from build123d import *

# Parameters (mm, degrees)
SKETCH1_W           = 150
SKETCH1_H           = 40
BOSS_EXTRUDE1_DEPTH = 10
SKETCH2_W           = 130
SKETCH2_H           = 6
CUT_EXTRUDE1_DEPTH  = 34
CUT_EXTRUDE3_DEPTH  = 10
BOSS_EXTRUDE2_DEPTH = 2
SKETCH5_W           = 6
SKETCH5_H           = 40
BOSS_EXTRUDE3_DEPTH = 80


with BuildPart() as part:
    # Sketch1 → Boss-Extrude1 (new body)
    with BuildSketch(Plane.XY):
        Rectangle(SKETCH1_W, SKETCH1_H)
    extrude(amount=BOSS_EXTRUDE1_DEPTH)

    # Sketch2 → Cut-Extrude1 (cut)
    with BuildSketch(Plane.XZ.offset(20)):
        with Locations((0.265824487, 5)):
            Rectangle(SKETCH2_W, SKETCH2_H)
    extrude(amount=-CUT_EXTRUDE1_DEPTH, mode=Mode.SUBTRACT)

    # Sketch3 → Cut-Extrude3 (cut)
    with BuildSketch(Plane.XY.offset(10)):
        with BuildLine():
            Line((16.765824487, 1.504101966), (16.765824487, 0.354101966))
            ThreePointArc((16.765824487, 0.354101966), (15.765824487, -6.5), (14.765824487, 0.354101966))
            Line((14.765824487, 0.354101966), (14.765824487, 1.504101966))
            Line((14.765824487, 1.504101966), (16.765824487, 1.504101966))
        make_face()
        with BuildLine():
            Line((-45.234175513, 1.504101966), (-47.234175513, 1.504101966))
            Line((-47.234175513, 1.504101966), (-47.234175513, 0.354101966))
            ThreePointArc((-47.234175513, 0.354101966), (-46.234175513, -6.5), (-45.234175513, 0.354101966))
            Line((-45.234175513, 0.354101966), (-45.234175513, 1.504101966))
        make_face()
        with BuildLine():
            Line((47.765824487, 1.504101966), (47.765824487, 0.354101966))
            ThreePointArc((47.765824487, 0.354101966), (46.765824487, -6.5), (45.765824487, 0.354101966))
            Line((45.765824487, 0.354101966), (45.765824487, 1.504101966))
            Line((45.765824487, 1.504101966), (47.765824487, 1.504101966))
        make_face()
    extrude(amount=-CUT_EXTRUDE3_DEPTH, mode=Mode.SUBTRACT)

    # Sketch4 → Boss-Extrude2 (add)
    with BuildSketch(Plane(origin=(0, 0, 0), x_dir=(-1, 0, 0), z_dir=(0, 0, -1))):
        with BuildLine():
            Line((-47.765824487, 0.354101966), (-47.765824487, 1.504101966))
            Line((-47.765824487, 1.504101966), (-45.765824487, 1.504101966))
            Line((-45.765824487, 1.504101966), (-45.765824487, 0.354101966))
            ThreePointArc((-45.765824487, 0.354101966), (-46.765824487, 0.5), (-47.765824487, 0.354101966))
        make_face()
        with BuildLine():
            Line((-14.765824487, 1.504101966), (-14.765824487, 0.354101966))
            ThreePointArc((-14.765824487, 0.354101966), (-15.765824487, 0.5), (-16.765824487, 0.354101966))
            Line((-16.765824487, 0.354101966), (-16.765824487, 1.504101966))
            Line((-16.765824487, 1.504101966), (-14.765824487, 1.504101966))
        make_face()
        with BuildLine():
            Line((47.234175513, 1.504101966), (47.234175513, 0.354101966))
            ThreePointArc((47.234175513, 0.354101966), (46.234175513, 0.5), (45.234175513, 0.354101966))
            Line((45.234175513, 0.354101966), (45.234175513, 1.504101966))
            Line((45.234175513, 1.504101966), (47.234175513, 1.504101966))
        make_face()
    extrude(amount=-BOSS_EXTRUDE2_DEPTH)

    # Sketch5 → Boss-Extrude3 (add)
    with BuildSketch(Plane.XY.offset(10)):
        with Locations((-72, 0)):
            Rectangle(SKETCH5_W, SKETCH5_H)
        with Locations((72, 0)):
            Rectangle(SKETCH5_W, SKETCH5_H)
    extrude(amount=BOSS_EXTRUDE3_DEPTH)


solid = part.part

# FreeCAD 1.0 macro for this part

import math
import FreeCAD as App
import Part
import Sketcher

doc = App.newDocument("Part")
body = doc.addObject("PartDesign::Body", "Body")

# Sketch on XY plane
sketch1 = body.newObject("Sketcher::SketchObject", "Sketch")
sketch1.AttachmentSupport = (doc.getObject("XY_Plane"), [""])
sketch1.MapMode = "FlatFace"
sketch1.addGeometry([
    Part.LineSegment(App.Vector(-75, 20, 0), App.Vector(-75, -20, 0)),
    Part.LineSegment(App.Vector(-75, -20, 0), App.Vector(75, -20, 0)),
    Part.LineSegment(App.Vector(75, -20, 0), App.Vector(75, 20, 0)),
    Part.LineSegment(App.Vector(75, 20, 0), App.Vector(-75, 20, 0)),
], False)
sketch1.addConstraint([
    Sketcher.Constraint("Coincident", 0, 2, 1, 1),
    Sketcher.Constraint("Coincident", 1, 2, 2, 1),
    Sketcher.Constraint("Coincident", 2, 2, 3, 1),
    Sketcher.Constraint("Coincident", 3, 2, 0, 1),
    Sketcher.Constraint("Vertical", 0),
    Sketcher.Constraint("Horizontal", 1),
    Sketcher.Constraint("Vertical", 2),
    Sketcher.Constraint("Horizontal", 3),
    Sketcher.Constraint("Symmetric", 0, 2, 2, 2, -1, 1),
    Sketcher.Constraint("DistanceX", 1, 1, 1, 2, 150.0),
    Sketcher.Constraint("DistanceY", 0, 2, 0, 1, 40.0),
])
pad1 = body.newObject("PartDesign::Pad", "Pad")
pad1.Profile = sketch1
pad1.Length = 10

# Sketch on XZ plane
sketch2 = body.newObject("Sketcher::SketchObject", "Sketch001")
sketch2.AttachmentSupport = (doc.getObject("XZ_Plane"), [""])
sketch2.MapMode = "FlatFace"
sketch2.AttachmentOffset = App.Placement(App.Vector(0, 0, 20), App.Rotation())
sketch2.addGeometry([
    Part.LineSegment(App.Vector(-64.734176, 8, 0), App.Vector(-64.734176, 2, 0)),
    Part.LineSegment(App.Vector(-64.734176, 2, 0), App.Vector(65.265824, 2, 0)),
    Part.LineSegment(App.Vector(65.265824, 2, 0), App.Vector(65.265824, 8, 0)),
    Part.LineSegment(App.Vector(65.265824, 8, 0), App.Vector(-64.734176, 8, 0)),
], False)
sketch2.addConstraint([
    Sketcher.Constraint("Coincident", 0, 2, 1, 1),
    Sketcher.Constraint("Coincident", 1, 2, 2, 1),
    Sketcher.Constraint("Coincident", 2, 2, 3, 1),
    Sketcher.Constraint("Coincident", 3, 2, 0, 1),
    Sketcher.Constraint("Vertical", 0),
    Sketcher.Constraint("Horizontal", 1),
    Sketcher.Constraint("Vertical", 2),
    Sketcher.Constraint("Horizontal", 3),
    Sketcher.Constraint("DistanceX", 1, 1, 1, 2, 130.0),
    Sketcher.Constraint("DistanceY", 0, 2, 0, 1, 6.0),
    Sketcher.Constraint("DistanceY", -1, 1, 0, 2, 2.0),
    Sketcher.Constraint("DistanceX", 0, 2, -1, 1, 64.734176),
])
pocket1 = body.newObject("PartDesign::Pocket", "Pocket")
pocket1.Profile = sketch2
pocket1.Length = 34

# Sketch on XY plane
sketch3 = body.newObject("Sketcher::SketchObject", "Sketch002")
sketch3.AttachmentSupport = (doc.getObject("XY_Plane"), [""])
sketch3.MapMode = "FlatFace"
sketch3.AttachmentOffset = App.Placement(App.Vector(0, 0, 10), App.Rotation())
sketch3.addGeometry([
    Part.LineSegment(App.Vector(16.765824, 0.354102, 0), App.Vector(16.765824, 1.504102, 0)),  # 0
    Part.LineSegment(App.Vector(16.765824, 1.504102, 0), App.Vector(14.765824, 1.504102, 0)),  # 1
    Part.LineSegment(App.Vector(14.765824, 1.504102, 0), App.Vector(14.765824, 0.354102, 0)),  # 2
    Part.ArcOfCircle(Part.Circle(App.Vector(15.765824, -3, 0), App.Vector(0, 0, 1), 3.5), math.radians(106.60155), math.radians(433.39845)),  # 3
    Part.LineSegment(App.Vector(-45.234176, 1.504102, 0), App.Vector(-47.234176, 1.504102, 0)),  # 4
    Part.LineSegment(App.Vector(-47.234176, 1.504102, 0), App.Vector(-47.234176, 0.354102, 0)),  # 5
    Part.ArcOfCircle(Part.Circle(App.Vector(-46.234176, -3, 0), App.Vector(0, 0, 1), 3.5), math.radians(106.60155), math.radians(433.39845)),  # 6
    Part.LineSegment(App.Vector(-45.234176, 0.354102, 0), App.Vector(-45.234176, 1.504102, 0)),  # 7
    Part.LineSegment(App.Vector(47.765824, 0.354102, 0), App.Vector(47.765824, 1.504102, 0)),  # 8
    Part.LineSegment(App.Vector(47.765824, 1.504102, 0), App.Vector(45.765824, 1.504102, 0)),  # 9
    Part.LineSegment(App.Vector(45.765824, 1.504102, 0), App.Vector(45.765824, 0.354102, 0)),  # 10
    Part.ArcOfCircle(Part.Circle(App.Vector(46.765824, -3, 0), App.Vector(0, 0, 1), 3.5), math.radians(106.60155), math.radians(433.39845)),  # 11
], False)
sketch3.addConstraint([
    Sketcher.Constraint("Coincident", 0, 2, 1, 1),
    Sketcher.Constraint("Coincident", 1, 2, 2, 1),
    Sketcher.Constraint("Coincident", 2, 2, 3, 1),
    Sketcher.Constraint("Coincident", 3, 2, 0, 1),
    Sketcher.Constraint("Coincident", 4, 2, 5, 1),
    Sketcher.Constraint("Coincident", 5, 2, 6, 1),
    Sketcher.Constraint("Coincident", 6, 2, 7, 1),
    Sketcher.Constraint("Coincident", 7, 2, 4, 1),
    Sketcher.Constraint("Coincident", 8, 2, 9, 1),
    Sketcher.Constraint("Coincident", 9, 2, 10, 1),
    Sketcher.Constraint("Coincident", 10, 2, 11, 1),
    Sketcher.Constraint("Coincident", 11, 2, 8, 1),
    Sketcher.Constraint("Vertical", 0),
    Sketcher.Constraint("Horizontal", 1),
    Sketcher.Constraint("Vertical", 2),
    Sketcher.Constraint("Horizontal", 4),
    Sketcher.Constraint("Vertical", 5),
    Sketcher.Constraint("Vertical", 7),
    Sketcher.Constraint("Vertical", 8),
    Sketcher.Constraint("Horizontal", 9),
    Sketcher.Constraint("Vertical", 10),
    Sketcher.Constraint("Equal", 3, 6),
    Sketcher.Constraint("Equal", 6, 11),
    Sketcher.Constraint("Horizontal", 3, 3, 6, 3),
    Sketcher.Constraint("Horizontal", 6, 3, 11, 3),
    Sketcher.Constraint("Horizontal", 2, 2, 3, 2),
    Sketcher.Constraint("Horizontal", 1, 2, 4, 2),
    Sketcher.Constraint("Horizontal", 3, 2, 5, 2),
    Sketcher.Constraint("Horizontal", 5, 2, 6, 2),
    Sketcher.Constraint("Horizontal", 7, 2, 8, 2),
    Sketcher.Constraint("Horizontal", 6, 2, 10, 2),
    Sketcher.Constraint("Horizontal", 10, 2, 11, 2),
    Sketcher.Constraint("Radius", 3, 3.5),
    Sketcher.Constraint("DistanceX", 1, 2, 1, 1, 2.0),
    Sketcher.Constraint("DistanceY", 3, 3, -1, 1, 3.0),
    Sketcher.Constraint("DistanceX", 6, 3, 3, 3, 62.0),
    Sketcher.Constraint("DistanceX", 3, 3, 11, 3, 31.0),
    Sketcher.Constraint("DistanceY", 0, 1, 0, 2, 1.15),
    Sketcher.Constraint("DistanceX", -1, 1, 3, 3, 15.765824),
])
pocket2 = body.newObject("PartDesign::Pocket", "Pocket001")
pocket2.Profile = sketch3
pocket2.Length = 10

# Sketch on XY plane
sketch4 = body.newObject("Sketcher::SketchObject", "Sketch003")
sketch4.AttachmentSupport = (doc.getObject("XY_Plane"), [""])
sketch4.MapMode = "FlatFace"
sketch4.addGeometry([
    Part.LineSegment(App.Vector(47.765824, 1.504102, 0), App.Vector(47.765824, 0.354102, 0)),  # 0
    Part.ArcOfCircle(Part.Circle(App.Vector(46.765824, -3, 0), App.Vector(0, 0, 1), 3.5), math.radians(73.39845), math.radians(106.60155)),  # 1
    Part.LineSegment(App.Vector(45.765824, 0.354102, 0), App.Vector(45.765824, 1.504102, 0)),  # 2
    Part.LineSegment(App.Vector(45.765824, 1.504102, 0), App.Vector(47.765824, 1.504102, 0)),  # 3
    Part.LineSegment(App.Vector(14.765824, 0.354102, 0), App.Vector(14.765824, 1.504102, 0)),  # 4
    Part.LineSegment(App.Vector(14.765824, 1.504102, 0), App.Vector(16.765824, 1.504102, 0)),  # 5
    Part.LineSegment(App.Vector(16.765824, 1.504102, 0), App.Vector(16.765824, 0.354102, 0)),  # 6
    Part.ArcOfCircle(Part.Circle(App.Vector(15.765824, -3, 0), App.Vector(0, 0, 1), 3.5), math.radians(73.39845), math.radians(106.60155)),  # 7
    Part.LineSegment(App.Vector(-47.234176, 0.354102, 0), App.Vector(-47.234176, 1.504102, 0)),  # 8
    Part.LineSegment(App.Vector(-47.234176, 1.504102, 0), App.Vector(-45.234176, 1.504102, 0)),  # 9
    Part.LineSegment(App.Vector(-45.234176, 1.504102, 0), App.Vector(-45.234176, 0.354102, 0)),  # 10
    Part.ArcOfCircle(Part.Circle(App.Vector(-46.234176, -3, 0), App.Vector(0, 0, 1), 3.5), math.radians(73.39845), math.radians(106.60155)),  # 11
], False)
sketch4.addConstraint([
    Sketcher.Constraint("Coincident", 0, 2, 1, 1),
    Sketcher.Constraint("Coincident", 1, 2, 2, 1),
    Sketcher.Constraint("Coincident", 2, 2, 3, 1),
    Sketcher.Constraint("Coincident", 3, 2, 0, 1),
    Sketcher.Constraint("Coincident", 4, 2, 5, 1),
    Sketcher.Constraint("Coincident", 5, 2, 6, 1),
    Sketcher.Constraint("Coincident", 6, 2, 7, 1),
    Sketcher.Constraint("Coincident", 7, 2, 4, 1),
    Sketcher.Constraint("Coincident", 8, 2, 9, 1),
    Sketcher.Constraint("Coincident", 9, 2, 10, 1),
    Sketcher.Constraint("Coincident", 10, 2, 11, 1),
    Sketcher.Constraint("Coincident", 11, 2, 8, 1),
    Sketcher.Constraint("Vertical", 0),
    Sketcher.Constraint("Vertical", 2),
    Sketcher.Constraint("Horizontal", 3),
    Sketcher.Constraint("Vertical", 4),
    Sketcher.Constraint("Horizontal", 5),
    Sketcher.Constraint("Vertical", 6),
    Sketcher.Constraint("Vertical", 8),
    Sketcher.Constraint("Horizontal", 9),
    Sketcher.Constraint("Vertical", 10),
    Sketcher.Constraint("Equal", 1, 7),
    Sketcher.Constraint("Equal", 7, 11),
    Sketcher.Constraint("Horizontal", 1, 3, 7, 3),
    Sketcher.Constraint("Horizontal", 7, 3, 11, 3),
    Sketcher.Constraint("Horizontal", 0, 2, 1, 2),
    Sketcher.Constraint("Horizontal", 3, 2, 4, 2),
    Sketcher.Constraint("Horizontal", 1, 2, 6, 2),
    Sketcher.Constraint("Horizontal", 6, 2, 7, 2),
    Sketcher.Constraint("Horizontal", 5, 2, 8, 2),
    Sketcher.Constraint("Horizontal", 7, 2, 10, 2),
    Sketcher.Constraint("Horizontal", 10, 2, 11, 2),
    Sketcher.Constraint("Radius", 1, 3.5),
    Sketcher.Constraint("DistanceX", 3, 1, 3, 2, 2.0),
    Sketcher.Constraint("DistanceY", 1, 3, -1, 1, 3.0),
    Sketcher.Constraint("DistanceX", 7, 3, 1, 3, 31.0),
    Sketcher.Constraint("DistanceX", 11, 3, 7, 3, 62.0),
    Sketcher.Constraint("DistanceY", 0, 2, 0, 1, 1.15),
    Sketcher.Constraint("DistanceX", -1, 1, 1, 3, 46.765824),
])
pad2 = body.newObject("PartDesign::Pad", "Pad001")
pad2.Profile = sketch4
pad2.Length = 2

# Sketch on XY plane
sketch5 = body.newObject("Sketcher::SketchObject", "Sketch004")
sketch5.AttachmentSupport = (doc.getObject("XY_Plane"), [""])
sketch5.MapMode = "FlatFace"
sketch5.AttachmentOffset = App.Placement(App.Vector(0, 0, 10), App.Rotation())
sketch5.addGeometry([
    Part.LineSegment(App.Vector(-75, 20, 0), App.Vector(-75, -20, 0)),  # 0
    Part.LineSegment(App.Vector(-75, -20, 0), App.Vector(-69, -20, 0)),  # 1
    Part.LineSegment(App.Vector(-69, -20, 0), App.Vector(-69, 20, 0)),  # 2
    Part.LineSegment(App.Vector(-69, 20, 0), App.Vector(-75, 20, 0)),  # 3
    Part.LineSegment(App.Vector(69, 20, 0), App.Vector(69, -20, 0)),  # 4
    Part.LineSegment(App.Vector(69, -20, 0), App.Vector(75, -20, 0)),  # 5
    Part.LineSegment(App.Vector(75, -20, 0), App.Vector(75, 20, 0)),  # 6
    Part.LineSegment(App.Vector(75, 20, 0), App.Vector(69, 20, 0)),  # 7
], False)
sketch5.addConstraint([
    Sketcher.Constraint("Coincident", 0, 2, 1, 1),
    Sketcher.Constraint("Coincident", 1, 2, 2, 1),
    Sketcher.Constraint("Coincident", 2, 2, 3, 1),
    Sketcher.Constraint("Coincident", 3, 2, 0, 1),
    Sketcher.Constraint("Coincident", 4, 2, 5, 1),
    Sketcher.Constraint("Coincident", 5, 2, 6, 1),
    Sketcher.Constraint("Coincident", 6, 2, 7, 1),
    Sketcher.Constraint("Coincident", 7, 2, 4, 1),
    Sketcher.Constraint("Vertical", 0),
    Sketcher.Constraint("Horizontal", 1),
    Sketcher.Constraint("Vertical", 2),
    Sketcher.Constraint("Horizontal", 3),
    Sketcher.Constraint("Vertical", 4),
    Sketcher.Constraint("Horizontal", 5),
    Sketcher.Constraint("Vertical", 6),
    Sketcher.Constraint("Horizontal", 7),
    Sketcher.Constraint("Symmetric", 2, 2, 4, 2, -1, 1),
    Sketcher.Constraint("Symmetric", 0, 2, 6, 2, -1, 1),
    Sketcher.Constraint("Horizontal", 1, 2, 4, 2),
    Sketcher.Constraint("DistanceX", 1, 1, 1, 2, 6.0),
    Sketcher.Constraint("DistanceY", 0, 2, 0, 1, 40.0),
    Sketcher.Constraint("DistanceX", 0, 2, -1, 1, 75.0),
])
pad3 = body.newObject("PartDesign::Pad", "Pad002")
pad3.Profile = sketch5
pad3.Length = 80

doc.recompute()
